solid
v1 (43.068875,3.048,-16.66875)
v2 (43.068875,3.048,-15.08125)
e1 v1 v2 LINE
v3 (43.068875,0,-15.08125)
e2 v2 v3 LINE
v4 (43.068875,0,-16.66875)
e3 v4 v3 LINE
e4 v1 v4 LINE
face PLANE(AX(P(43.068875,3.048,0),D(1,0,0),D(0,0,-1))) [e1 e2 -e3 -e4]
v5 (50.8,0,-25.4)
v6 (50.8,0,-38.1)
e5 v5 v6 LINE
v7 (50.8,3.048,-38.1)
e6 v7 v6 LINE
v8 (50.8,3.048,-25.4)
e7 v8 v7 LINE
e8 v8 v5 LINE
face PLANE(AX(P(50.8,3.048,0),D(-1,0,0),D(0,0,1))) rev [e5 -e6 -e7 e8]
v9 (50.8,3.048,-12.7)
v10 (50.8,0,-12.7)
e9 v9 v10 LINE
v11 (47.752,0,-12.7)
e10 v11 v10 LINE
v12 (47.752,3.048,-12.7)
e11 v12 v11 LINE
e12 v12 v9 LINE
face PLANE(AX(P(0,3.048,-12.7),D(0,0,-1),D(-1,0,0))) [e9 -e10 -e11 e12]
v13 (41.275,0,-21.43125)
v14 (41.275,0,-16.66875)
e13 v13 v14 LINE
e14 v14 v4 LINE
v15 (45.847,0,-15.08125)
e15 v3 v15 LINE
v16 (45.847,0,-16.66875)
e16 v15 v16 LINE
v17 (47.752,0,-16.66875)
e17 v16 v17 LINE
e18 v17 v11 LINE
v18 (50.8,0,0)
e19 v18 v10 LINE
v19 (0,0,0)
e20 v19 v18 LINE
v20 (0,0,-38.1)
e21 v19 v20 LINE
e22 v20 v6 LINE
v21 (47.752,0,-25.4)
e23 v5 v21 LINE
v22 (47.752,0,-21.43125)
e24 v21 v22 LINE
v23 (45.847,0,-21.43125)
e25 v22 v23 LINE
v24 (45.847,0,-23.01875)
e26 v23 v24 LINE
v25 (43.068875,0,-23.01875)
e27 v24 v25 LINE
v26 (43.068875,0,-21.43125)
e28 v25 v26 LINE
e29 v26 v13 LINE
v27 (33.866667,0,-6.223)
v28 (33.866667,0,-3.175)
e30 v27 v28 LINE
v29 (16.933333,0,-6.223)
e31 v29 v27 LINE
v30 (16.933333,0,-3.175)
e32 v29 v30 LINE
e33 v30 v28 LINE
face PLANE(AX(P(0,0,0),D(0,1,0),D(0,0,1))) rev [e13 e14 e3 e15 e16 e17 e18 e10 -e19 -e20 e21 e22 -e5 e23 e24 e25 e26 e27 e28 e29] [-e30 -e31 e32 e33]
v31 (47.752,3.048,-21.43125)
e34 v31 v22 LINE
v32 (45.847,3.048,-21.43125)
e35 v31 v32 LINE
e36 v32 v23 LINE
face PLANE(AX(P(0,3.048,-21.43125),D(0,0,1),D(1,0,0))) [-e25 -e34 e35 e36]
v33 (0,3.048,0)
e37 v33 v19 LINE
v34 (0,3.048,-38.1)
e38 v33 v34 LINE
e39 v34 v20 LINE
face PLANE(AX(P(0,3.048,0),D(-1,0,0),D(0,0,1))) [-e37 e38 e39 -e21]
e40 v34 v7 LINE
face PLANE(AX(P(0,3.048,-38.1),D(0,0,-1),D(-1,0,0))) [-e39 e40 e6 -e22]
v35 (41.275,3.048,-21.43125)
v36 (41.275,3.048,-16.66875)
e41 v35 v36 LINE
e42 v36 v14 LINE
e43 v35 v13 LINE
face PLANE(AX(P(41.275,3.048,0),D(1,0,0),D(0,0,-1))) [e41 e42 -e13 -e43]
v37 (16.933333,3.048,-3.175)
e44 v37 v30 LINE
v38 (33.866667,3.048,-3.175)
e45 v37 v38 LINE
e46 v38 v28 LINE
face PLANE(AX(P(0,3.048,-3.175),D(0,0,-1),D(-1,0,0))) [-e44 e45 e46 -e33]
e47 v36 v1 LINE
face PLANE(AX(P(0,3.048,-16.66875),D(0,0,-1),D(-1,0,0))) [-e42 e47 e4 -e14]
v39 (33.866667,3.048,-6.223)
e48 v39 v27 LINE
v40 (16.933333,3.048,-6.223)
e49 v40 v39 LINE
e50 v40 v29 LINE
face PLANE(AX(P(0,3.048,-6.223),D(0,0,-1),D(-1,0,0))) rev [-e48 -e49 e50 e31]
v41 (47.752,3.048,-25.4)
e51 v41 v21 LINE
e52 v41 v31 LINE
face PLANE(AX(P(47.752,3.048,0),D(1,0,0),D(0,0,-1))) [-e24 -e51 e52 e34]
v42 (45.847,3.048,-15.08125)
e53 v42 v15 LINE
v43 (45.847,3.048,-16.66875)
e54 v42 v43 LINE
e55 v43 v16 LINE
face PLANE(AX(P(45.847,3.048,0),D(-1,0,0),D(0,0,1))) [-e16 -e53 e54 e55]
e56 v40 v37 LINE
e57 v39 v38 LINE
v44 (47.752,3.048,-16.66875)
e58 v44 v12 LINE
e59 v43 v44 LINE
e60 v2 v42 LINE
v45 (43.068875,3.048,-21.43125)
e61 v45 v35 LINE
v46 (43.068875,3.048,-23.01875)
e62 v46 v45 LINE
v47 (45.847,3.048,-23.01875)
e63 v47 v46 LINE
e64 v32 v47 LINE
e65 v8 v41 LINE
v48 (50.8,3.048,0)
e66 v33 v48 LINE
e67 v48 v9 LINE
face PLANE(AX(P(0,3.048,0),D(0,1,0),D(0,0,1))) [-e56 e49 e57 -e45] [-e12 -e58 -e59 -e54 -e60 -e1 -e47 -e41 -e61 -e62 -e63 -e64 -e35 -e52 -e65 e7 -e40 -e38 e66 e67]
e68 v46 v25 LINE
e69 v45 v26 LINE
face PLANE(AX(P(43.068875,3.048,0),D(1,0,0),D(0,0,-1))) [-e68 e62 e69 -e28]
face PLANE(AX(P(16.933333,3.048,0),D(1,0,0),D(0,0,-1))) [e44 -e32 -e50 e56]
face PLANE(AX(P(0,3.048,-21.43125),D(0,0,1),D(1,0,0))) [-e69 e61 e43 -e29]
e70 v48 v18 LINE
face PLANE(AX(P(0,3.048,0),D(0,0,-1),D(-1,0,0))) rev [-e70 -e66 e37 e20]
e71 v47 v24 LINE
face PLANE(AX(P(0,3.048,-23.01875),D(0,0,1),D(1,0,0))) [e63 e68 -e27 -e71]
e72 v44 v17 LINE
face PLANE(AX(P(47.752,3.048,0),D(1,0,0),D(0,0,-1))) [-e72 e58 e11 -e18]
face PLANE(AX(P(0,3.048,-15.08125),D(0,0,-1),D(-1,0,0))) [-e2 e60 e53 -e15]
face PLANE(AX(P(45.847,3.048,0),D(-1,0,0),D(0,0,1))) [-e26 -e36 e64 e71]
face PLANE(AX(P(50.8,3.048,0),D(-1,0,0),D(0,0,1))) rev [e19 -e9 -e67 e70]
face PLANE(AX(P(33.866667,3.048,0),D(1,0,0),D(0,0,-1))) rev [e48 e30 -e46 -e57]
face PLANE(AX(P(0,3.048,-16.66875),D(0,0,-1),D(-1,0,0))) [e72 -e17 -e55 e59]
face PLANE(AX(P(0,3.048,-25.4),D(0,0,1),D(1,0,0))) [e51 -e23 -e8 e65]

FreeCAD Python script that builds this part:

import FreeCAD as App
import Part
import Sketcher

V = App.Vector
Q = App.Units.Quantity


def add_polygon(sketch, points):
    """Adds a closed chain of lines whose ends are joined by coincident constraints."""
    first, n = sketch.GeometryCount, len(points)
    for a, b in zip(points, points[1:] + points[:1]):
        sketch.addGeometry(Part.LineSegment(App.Vector(*a, 0), App.Vector(*b, 0)), False)
    for i in range(n):
        sketch.addConstraint(Sketcher.Constraint("Coincident", first + i, 2, first + (i + 1) % n, 1))

doc = App.newDocument("Part")
body = doc.addObject("PartDesign::Body", "Body")

sketch1 = body.newObject("Sketcher::SketchObject", "Sketch")
sketch1.AttachmentSupport = (doc.getObject("XZ_Plane"), [""])
sketch1.MapMode = "FlatFace"
add_polygon(sketch1, [(47.752, -25.4), (50.8, -25.4), (50.8, -38.1), (0, -38.1), (0, 0), (50.8, 0), (50.8, -12.7), (47.752, -12.7), (47.752, -16.66875), (45.847, -16.66875), (45.847, -15.08125), (43.068875, -15.08125), (43.068875, -16.66875), (41.275, -16.66875), (41.275, -21.43125), (43.068875, -21.43125), (43.068875, -23.01875), (45.847, -23.01875), (45.847, -21.43125), (47.752, -21.43125)])
add_polygon(sketch1, [(16.933333, -3.175), (16.933333, -6.223), (33.866667, -6.223), (33.866667, -3.175)])
sketch1.addConstraint(Sketcher.Constraint("Horizontal", 0))
sketch1.addConstraint(Sketcher.Constraint("Vertical", 1))
sketch1.addConstraint(Sketcher.Constraint("Horizontal", 2))
sketch1.addConstraint(Sketcher.Constraint("Vertical", 3))
sketch1.addConstraint(Sketcher.Constraint("Horizontal", 4))
sketch1.addConstraint(Sketcher.Constraint("Vertical", 5))
sketch1.addConstraint(Sketcher.Constraint("Horizontal", 6))
sketch1.addConstraint(Sketcher.Constraint("Vertical", 7))
sketch1.addConstraint(Sketcher.Constraint("Horizontal", 8))
sketch1.addConstraint(Sketcher.Constraint("Vertical", 9))
sketch1.addConstraint(Sketcher.Constraint("Horizontal", 10))
sketch1.addConstraint(Sketcher.Constraint("Vertical", 11))
sketch1.addConstraint(Sketcher.Constraint("Horizontal", 12))
sketch1.addConstraint(Sketcher.Constraint("Vertical", 13))
sketch1.addConstraint(Sketcher.Constraint("Horizontal", 14))
sketch1.addConstraint(Sketcher.Constraint("Vertical", 15))
sketch1.addConstraint(Sketcher.Constraint("Horizontal", 16))
sketch1.addConstraint(Sketcher.Constraint("Vertical", 17))
sketch1.addConstraint(Sketcher.Constraint("Horizontal", 18))
sketch1.addConstraint(Sketcher.Constraint("Vertical", 19))
sketch1.addConstraint(Sketcher.Constraint("Vertical", 20))
sketch1.addConstraint(Sketcher.Constraint("Horizontal", 21))
sketch1.addConstraint(Sketcher.Constraint("Vertical", 22))
sketch1.addConstraint(Sketcher.Constraint("Horizontal", 23))
sketch1.addConstraint(Sketcher.Constraint("Coincident", 3, 2, -1, 1))
sketch1.addConstraint(Sketcher.Constraint("Horizontal", 8, 2, 11, 2))
sketch1.addConstraint(Sketcher.Constraint("Horizontal", 14, 2, 17, 2))
sketch1.addConstraint(Sketcher.Constraint("Vertical", 1, 2, 4, 2))
sketch1.addConstraint(Sketcher.Constraint("Vertical", 11, 2, 14, 2))
sketch1.addConstraint(Sketcher.Constraint("Vertical", 9, 2, 16, 2))
sketch1.addConstraint(Sketcher.Constraint("Vertical", 7, 2, 18, 2))
sketch1.addConstraint(Sketcher.Constraint("Equal", 1, 5))
sketch1.addConstraint(Sketcher.Constraint("Equal", 11, 15))
sketch1.addConstraint(Sketcher.Constraint("Equal", 7, 19))
sketch1.addConstraint(Sketcher.Constraint("Equal", 6, 20))
sketch1.addConstraint(Sketcher.Constraint("DistanceX", 2, 2, 2, 1, Q("2 in")))
sketch1.addConstraint(Sketcher.Constraint("DistanceY", 1, 2, 1, 1, Q("0.5 in")))
sketch1.addConstraint(Sketcher.Constraint("DistanceY", 3, 1, 3, 2, Q("1.5 in")))
sketch1.addConstraint(Sketcher.Constraint("DistanceX", 0, 1, 0, 2, Q("0.12 in")))
sketch1.addConstraint(Sketcher.Constraint("DistanceX", 8, 2, 8, 1, Q("0.075 in")))
sketch1.addConstraint(Sketcher.Constraint("DistanceX", 10, 2, 10, 1, Q("0.109375 in")))
sketch1.addConstraint(Sketcher.Constraint("DistanceY", 7, 2, 7, 1, Q("0.15625 in")))
sketch1.addConstraint(Sketcher.Constraint("DistanceY", 9, 1, 9, 2, Q("0.0625 in")))
sketch1.addConstraint(Sketcher.Constraint("DistanceX", 12, 2, 8, 2, Q("0.18 in")))
sketch1.addConstraint(Sketcher.Constraint("DistanceY", 20, 2, -1, 1, Q("0.245 in")))
sketch1.addConstraint(Sketcher.Constraint("DistanceX", 21, 1, 21, 2, Q("16.933333 mm")))
sketch1.addConstraint(Sketcher.Constraint("DistanceX", 20, 2, 10, 2, Q("26.135542 mm")))
pad1 = body.newObject("PartDesign::Pad", "Pad")
pad1.Profile = sketch1
pad1.Length = Q("0.12 in")
pad1.Reversed = True

doc.recompute()
